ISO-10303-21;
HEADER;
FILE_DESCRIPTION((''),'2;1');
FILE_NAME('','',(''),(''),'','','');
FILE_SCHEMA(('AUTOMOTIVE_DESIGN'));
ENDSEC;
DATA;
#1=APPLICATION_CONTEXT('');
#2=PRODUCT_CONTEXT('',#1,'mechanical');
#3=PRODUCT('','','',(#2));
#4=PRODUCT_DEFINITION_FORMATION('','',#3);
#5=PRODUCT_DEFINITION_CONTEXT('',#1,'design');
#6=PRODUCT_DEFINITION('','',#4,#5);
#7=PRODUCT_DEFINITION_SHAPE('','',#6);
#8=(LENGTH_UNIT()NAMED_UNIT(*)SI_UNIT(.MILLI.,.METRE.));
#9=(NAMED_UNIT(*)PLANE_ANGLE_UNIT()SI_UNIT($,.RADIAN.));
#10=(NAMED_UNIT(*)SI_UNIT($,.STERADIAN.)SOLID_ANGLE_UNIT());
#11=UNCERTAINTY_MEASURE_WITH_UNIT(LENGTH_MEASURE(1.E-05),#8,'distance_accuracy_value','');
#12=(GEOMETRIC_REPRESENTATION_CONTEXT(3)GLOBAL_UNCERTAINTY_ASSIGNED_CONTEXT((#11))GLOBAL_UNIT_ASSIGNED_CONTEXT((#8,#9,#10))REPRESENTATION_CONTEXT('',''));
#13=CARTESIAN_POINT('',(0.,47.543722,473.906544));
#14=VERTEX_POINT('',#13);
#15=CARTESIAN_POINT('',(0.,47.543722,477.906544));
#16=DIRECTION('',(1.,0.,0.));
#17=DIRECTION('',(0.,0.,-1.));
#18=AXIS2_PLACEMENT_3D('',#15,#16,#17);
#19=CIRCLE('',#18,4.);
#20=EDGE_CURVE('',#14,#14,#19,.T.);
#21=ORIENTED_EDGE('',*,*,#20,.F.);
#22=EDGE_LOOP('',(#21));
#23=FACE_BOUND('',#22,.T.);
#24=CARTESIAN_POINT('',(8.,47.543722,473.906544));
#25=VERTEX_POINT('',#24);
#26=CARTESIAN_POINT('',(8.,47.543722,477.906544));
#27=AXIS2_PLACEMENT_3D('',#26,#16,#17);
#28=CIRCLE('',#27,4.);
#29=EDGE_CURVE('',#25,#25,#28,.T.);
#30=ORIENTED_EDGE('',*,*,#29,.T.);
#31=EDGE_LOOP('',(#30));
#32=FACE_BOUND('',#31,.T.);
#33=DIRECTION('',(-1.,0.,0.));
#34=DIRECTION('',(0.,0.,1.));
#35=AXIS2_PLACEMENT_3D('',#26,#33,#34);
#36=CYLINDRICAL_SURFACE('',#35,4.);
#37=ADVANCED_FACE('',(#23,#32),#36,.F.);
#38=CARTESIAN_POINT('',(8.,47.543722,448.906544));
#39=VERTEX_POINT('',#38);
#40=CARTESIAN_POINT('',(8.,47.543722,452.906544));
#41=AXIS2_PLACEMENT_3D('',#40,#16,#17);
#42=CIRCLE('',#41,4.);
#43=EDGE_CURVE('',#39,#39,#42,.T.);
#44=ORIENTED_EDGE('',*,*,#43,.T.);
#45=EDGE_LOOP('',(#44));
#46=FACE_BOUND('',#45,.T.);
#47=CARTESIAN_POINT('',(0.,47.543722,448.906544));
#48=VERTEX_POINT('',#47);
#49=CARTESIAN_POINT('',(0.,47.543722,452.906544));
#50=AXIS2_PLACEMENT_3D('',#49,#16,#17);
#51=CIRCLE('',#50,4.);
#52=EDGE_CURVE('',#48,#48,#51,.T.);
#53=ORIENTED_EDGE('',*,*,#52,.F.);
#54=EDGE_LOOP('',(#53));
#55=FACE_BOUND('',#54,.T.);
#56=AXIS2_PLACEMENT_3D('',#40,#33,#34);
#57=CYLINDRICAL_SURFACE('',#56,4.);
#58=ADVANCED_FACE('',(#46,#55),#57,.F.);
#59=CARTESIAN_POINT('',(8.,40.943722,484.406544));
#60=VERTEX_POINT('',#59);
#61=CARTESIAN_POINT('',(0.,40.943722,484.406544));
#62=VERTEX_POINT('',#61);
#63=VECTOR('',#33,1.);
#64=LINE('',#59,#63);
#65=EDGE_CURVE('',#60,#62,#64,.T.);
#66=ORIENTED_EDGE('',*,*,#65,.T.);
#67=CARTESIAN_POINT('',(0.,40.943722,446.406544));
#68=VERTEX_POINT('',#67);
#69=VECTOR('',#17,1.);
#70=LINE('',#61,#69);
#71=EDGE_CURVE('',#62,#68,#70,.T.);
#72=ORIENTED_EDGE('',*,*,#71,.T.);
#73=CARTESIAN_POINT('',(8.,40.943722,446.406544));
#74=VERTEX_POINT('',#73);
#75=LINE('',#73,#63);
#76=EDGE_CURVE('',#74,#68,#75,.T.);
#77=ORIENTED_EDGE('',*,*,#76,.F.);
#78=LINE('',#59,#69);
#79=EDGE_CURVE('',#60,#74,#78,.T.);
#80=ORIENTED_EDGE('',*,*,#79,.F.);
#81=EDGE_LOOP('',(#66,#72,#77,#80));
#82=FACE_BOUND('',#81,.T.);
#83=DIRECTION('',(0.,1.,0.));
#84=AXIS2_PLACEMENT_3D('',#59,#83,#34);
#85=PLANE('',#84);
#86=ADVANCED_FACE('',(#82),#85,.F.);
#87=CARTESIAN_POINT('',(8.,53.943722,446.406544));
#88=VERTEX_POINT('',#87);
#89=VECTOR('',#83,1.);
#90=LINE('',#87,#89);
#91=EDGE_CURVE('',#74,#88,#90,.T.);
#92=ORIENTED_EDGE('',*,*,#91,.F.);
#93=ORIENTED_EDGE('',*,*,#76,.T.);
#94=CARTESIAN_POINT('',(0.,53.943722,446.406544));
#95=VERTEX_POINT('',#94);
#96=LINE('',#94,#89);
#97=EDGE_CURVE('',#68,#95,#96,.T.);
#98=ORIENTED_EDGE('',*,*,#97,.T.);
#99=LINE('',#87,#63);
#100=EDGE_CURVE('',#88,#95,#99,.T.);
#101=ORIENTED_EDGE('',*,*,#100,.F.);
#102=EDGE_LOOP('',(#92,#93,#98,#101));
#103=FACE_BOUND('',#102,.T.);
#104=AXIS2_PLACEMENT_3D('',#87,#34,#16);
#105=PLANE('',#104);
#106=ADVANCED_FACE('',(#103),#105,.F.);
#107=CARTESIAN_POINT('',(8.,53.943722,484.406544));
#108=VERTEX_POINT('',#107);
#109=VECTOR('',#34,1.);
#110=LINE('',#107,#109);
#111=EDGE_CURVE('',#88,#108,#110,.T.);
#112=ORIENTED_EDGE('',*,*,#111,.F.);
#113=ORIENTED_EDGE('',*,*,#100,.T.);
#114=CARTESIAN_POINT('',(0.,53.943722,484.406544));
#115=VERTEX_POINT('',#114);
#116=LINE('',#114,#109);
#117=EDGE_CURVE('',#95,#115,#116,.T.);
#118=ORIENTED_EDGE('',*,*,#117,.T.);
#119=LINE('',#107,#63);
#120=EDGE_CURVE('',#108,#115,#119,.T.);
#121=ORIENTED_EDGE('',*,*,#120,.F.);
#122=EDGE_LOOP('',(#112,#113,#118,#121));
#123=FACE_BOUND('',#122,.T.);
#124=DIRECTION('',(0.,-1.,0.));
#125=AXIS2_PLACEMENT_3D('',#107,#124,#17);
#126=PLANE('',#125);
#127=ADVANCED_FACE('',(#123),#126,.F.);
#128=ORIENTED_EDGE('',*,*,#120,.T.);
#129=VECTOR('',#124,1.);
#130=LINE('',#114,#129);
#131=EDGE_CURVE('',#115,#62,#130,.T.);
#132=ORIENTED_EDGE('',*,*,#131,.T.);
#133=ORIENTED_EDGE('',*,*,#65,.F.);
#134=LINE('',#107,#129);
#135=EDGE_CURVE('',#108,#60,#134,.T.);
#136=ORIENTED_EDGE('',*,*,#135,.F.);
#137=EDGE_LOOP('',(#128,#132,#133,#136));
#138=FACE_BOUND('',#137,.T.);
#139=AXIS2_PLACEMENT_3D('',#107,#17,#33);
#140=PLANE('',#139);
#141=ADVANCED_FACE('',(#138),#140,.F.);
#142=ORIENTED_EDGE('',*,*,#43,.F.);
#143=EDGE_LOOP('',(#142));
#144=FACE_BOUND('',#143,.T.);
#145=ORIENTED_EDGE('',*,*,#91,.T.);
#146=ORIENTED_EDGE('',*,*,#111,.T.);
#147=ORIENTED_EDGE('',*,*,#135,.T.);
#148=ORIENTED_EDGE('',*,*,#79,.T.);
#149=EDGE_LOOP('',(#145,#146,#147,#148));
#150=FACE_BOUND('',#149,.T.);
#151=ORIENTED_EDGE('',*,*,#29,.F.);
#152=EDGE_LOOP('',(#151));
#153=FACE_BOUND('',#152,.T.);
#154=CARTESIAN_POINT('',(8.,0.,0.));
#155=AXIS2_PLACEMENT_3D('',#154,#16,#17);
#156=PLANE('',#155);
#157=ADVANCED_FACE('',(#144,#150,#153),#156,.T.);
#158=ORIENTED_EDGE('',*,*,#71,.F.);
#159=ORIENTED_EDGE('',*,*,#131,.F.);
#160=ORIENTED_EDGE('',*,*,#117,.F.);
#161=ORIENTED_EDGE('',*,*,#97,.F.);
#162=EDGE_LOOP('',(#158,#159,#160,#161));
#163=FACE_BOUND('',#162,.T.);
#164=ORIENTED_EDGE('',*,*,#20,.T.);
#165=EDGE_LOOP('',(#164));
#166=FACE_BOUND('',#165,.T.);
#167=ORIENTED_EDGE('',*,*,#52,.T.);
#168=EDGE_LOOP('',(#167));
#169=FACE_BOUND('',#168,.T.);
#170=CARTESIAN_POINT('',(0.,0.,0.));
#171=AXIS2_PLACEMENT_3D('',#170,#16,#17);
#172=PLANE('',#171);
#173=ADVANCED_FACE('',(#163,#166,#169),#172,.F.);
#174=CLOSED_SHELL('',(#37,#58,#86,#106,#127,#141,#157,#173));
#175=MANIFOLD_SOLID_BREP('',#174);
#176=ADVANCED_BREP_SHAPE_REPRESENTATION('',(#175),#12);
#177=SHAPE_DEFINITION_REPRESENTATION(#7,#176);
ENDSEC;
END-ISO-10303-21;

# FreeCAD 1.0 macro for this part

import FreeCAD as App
import Part
import Sketcher

V = App.Vector

doc = App.newDocument("Part")
body = doc.addObject("PartDesign::Body", "Body")

# Sketch on YZ plane
sketch1 = body.newObject("Sketcher::SketchObject", "Sketch")
sketch1.AttachmentSupport = (doc.getObject("YZ_Plane"), [""])
sketch1.MapMode = "FlatFace"
sketch1.addGeometry(Part.LineSegment(V(53.943722, 484.406544, 0), V(40.943722, 484.406544, 0)), False)
sketch1.addGeometry(Part.LineSegment(V(40.943722, 484.406544, 0), V(40.943722, 446.406544, 0)), False)
sketch1.addGeometry(Part.LineSegment(V(40.943722, 446.406544, 0), V(53.943722, 446.406544, 0)), False)
sketch1.addGeometry(Part.LineSegment(V(53.943722, 446.406544, 0), V(53.943722, 484.406544, 0)), False)
sketch1.addGeometry(Part.Circle(V(47.543722, 477.906544, 0), V(0, 0, 1), 4), False)
sketch1.addGeometry(Part.Circle(V(47.543722, 452.906544, 0), V(0, 0, 1), 4), False)
sketch1.addConstraint(Sketcher.Constraint("Coincident", 0, 2, 1, 1))
sketch1.addConstraint(Sketcher.Constraint("Coincident", 1, 2, 2, 1))
sketch1.addConstraint(Sketcher.Constraint("Coincident", 2, 2, 3, 1))
sketch1.addConstraint(Sketcher.Constraint("Coincident", 3, 2, 0, 1))
sketch1.addConstraint(Sketcher.Constraint("Horizontal", 0))
sketch1.addConstraint(Sketcher.Constraint("Vertical", 1))
sketch1.addConstraint(Sketcher.Constraint("Horizontal", 2))
sketch1.addConstraint(Sketcher.Constraint("Vertical", 3))
sketch1.addConstraint(Sketcher.Constraint("Equal", 4, 5))
sketch1.addConstraint(Sketcher.Constraint("Vertical", 4, 3, 5, 3))
sketch1.addConstraint(Sketcher.Constraint("Diameter", 4, 8.0))
sketch1.addConstraint(Sketcher.Constraint("DistanceX", 0, 2, 0, 1, 13.0))
sketch1.addConstraint(Sketcher.Constraint("DistanceY", 1, 2, 1, 1, 38.0))
sketch1.addConstraint(Sketcher.Constraint("DistanceY", 5, 3, 4, 3, 25.0))
sketch1.addConstraint(Sketcher.Constraint("DistanceX", 0, 2, 4, 3, 6.6))
sketch1.addConstraint(Sketcher.Constraint("DistanceY", 4, 3, 0, 2, 6.5))
sketch1.addConstraint(Sketcher.Constraint("DistanceX", -1, 1, 4, 3, 47.543722))
sketch1.addConstraint(Sketcher.Constraint("DistanceY", -1, 1, 4, 3, 477.906544))
pad1 = body.newObject("PartDesign::Pad", "Pad")
pad1.Profile = sketch1
pad1.Length = 8

doc.recompute()
